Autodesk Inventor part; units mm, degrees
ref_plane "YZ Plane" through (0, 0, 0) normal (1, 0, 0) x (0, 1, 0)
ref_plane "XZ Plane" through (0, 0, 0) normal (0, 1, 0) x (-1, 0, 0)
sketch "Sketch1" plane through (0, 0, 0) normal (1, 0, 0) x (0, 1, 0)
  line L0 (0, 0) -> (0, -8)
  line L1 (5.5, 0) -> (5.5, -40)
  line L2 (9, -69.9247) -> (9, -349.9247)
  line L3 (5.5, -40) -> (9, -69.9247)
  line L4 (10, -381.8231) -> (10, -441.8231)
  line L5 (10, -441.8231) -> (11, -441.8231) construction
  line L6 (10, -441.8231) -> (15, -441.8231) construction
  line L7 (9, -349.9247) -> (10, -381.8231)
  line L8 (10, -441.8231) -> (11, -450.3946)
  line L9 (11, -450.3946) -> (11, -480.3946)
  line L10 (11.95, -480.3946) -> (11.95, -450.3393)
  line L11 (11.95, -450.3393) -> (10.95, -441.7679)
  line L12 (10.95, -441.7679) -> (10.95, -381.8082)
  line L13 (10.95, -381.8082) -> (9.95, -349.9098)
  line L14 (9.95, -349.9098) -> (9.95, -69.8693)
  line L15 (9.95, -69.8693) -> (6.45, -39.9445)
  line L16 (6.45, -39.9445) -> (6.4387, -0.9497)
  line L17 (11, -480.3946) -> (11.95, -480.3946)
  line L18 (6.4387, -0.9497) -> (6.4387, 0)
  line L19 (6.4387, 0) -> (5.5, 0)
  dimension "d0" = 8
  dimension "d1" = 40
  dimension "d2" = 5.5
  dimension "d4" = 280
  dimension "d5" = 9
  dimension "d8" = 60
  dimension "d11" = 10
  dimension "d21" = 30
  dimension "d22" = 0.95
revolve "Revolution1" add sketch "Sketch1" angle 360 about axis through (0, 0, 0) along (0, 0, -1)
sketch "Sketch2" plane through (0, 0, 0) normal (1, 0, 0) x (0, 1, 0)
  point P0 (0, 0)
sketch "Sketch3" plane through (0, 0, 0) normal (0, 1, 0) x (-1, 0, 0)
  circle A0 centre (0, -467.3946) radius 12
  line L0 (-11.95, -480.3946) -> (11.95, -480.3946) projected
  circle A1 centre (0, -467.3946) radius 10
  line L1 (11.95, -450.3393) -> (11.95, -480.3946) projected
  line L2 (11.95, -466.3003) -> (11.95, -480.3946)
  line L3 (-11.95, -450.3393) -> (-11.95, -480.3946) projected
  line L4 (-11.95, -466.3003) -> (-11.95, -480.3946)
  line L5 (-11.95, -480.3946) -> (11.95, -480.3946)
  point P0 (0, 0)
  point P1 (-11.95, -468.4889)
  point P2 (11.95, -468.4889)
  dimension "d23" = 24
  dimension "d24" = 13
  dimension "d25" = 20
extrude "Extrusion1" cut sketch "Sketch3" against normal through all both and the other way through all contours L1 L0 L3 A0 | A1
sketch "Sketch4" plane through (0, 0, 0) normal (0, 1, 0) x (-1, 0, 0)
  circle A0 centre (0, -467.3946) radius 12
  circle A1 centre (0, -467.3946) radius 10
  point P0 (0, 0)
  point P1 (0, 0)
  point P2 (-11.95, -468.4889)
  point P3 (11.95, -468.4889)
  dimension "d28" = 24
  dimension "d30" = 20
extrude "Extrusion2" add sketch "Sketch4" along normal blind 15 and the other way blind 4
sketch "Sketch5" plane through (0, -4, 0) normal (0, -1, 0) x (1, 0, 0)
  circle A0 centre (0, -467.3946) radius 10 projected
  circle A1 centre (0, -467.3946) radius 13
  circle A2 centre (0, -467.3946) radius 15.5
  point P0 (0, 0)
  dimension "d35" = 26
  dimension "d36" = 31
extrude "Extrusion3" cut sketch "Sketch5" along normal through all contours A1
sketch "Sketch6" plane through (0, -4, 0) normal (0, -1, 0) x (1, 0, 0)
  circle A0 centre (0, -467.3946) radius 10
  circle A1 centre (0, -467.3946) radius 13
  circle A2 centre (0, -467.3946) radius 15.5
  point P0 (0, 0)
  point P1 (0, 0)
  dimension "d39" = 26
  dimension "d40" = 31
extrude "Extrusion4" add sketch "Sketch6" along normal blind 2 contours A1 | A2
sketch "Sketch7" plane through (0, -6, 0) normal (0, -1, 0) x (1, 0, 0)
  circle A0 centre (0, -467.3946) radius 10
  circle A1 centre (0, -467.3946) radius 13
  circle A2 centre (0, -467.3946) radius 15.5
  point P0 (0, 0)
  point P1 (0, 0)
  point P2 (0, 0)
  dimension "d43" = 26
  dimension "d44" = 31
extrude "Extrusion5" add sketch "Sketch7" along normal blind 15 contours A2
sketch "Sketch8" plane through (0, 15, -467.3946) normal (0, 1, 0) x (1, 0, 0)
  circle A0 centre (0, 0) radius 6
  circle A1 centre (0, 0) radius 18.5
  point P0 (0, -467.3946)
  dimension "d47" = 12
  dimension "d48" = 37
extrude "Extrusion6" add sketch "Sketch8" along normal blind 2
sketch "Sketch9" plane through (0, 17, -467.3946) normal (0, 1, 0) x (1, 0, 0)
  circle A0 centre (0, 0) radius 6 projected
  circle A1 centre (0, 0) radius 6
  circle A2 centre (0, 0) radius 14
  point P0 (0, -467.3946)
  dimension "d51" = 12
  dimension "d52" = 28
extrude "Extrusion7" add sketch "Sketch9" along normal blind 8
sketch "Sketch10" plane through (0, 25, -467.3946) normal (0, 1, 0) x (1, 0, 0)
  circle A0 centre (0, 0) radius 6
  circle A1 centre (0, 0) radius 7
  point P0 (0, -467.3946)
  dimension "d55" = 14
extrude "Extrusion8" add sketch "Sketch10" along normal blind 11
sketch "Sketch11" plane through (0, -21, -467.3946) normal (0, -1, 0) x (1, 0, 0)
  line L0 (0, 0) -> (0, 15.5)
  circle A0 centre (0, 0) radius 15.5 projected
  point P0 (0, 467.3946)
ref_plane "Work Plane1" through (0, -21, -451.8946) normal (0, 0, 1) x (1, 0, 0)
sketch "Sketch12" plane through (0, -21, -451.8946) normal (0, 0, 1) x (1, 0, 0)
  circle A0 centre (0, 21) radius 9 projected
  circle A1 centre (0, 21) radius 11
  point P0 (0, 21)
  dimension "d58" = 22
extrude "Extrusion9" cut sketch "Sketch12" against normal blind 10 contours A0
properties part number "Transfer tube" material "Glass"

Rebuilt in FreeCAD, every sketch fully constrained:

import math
import FreeCAD as App
import Part
import Sketcher
Q = App.Units.Quantity


def add_polygon(sketch, points):
    """Adds a closed chain of lines whose ends are joined by coincident constraints."""
    first, n = sketch.GeometryCount, len(points)
    for a, b in zip(points, points[1:] + points[:1]):
        sketch.addGeometry(Part.LineSegment(App.Vector(*a, 0), App.Vector(*b, 0)), False)
    for i in range(n):
        sketch.addConstraint(Sketcher.Constraint("Coincident", first + i, 2, first + (i + 1) % n, 1))

doc = App.newDocument("Part")
body = doc.addObject("PartDesign::Body", "Body")

sketch1 = doc.addObject("Sketcher::SketchObject", "Sketch")
body.addObject(sketch1)
sketch1.AttachmentSupport = (doc.YZ_Plane, [""])
sketch1.MapMode = "FlatFace"
add_polygon(sketch1, [(6.4387, 0), (5.5, 0), (5.5, -40), (9, -69.9247), (9, -349.9247), (10, -381.8231), (10, -441.8231), (11, -450.3946), (11, -480.3946), (11.95, -480.3946), (11.95, -450.3393), (10.95, -441.7679), (10.95, -381.8082), (9.95, -349.9098), (9.95, -69.8693), (6.45, -39.9445), (6.4387, -0.9497)])
sketch1.addConstraint([
    Sketcher.Constraint("Horizontal", 0),
    Sketcher.Constraint("Vertical", 1),
    Sketcher.Constraint("Vertical", 3),
    Sketcher.Constraint("Vertical", 5),
    Sketcher.Constraint("Vertical", 7),
    Sketcher.Constraint("Horizontal", 8),
    Sketcher.Constraint("Vertical", 9),
    Sketcher.Constraint("Vertical", 11),
    Sketcher.Constraint("Vertical", 13),
    Sketcher.Constraint("Vertical", 16),
    Sketcher.Constraint("PointOnObject", 0, 2, -1),
    Sketcher.Constraint("DistanceY", 1, 2, 1, 1, Q("40 mm")),
    Sketcher.Constraint("DistanceY", 3, 2, 3, 1, Q("280 mm")),
    Sketcher.Constraint("DistanceY", 5, 2, 5, 1, Q("60 mm")),
    Sketcher.Constraint("DistanceY", 7, 2, 7, 1, Q("30 mm")),
    Sketcher.Constraint("DistanceX", -1, 1, 2, 2, Q("9 mm")),
    Sketcher.Constraint("DistanceX", -1, 1, 4, 2, Q("10 mm")),
    Sketcher.Constraint("DistanceX", 8, 1, 8, 2, Q("0.95 mm")),
    Sketcher.Constraint("DistanceX", -1, 1, 0, 2, Q("5.5 mm")),
    Sketcher.Constraint("DistanceX", 1, 2, 6, 2, Q("5.5 mm")),
    Sketcher.Constraint("DistanceX", 5, 2, 10, 2, Q("0.95 mm")),
    Sketcher.Constraint("DistanceX", 3, 2, 12, 2, Q("0.95 mm")),
    Sketcher.Constraint("DistanceX", 1, 2, 14, 2, Q("0.95 mm")),
    Sketcher.Constraint("DistanceY", 16, 1, 16, 2, Q("0.9497 mm")),
    Sketcher.Constraint("DistanceY", 6, 2, 3, 2, Q("100.47 mm")),
    Sketcher.Constraint("Distance", 4, Q("31.914 mm")),
    Sketcher.Constraint("Distance", 12, Q("31.914 mm")),
    Sketcher.Constraint("DistanceX", 0, 2, 0, 1, Q("0.9387 mm")),
    Sketcher.Constraint("DistanceY", 9, 1, 9, 2, Q("30.0553 mm")),
    Sketcher.Constraint("DistanceY", 11, 1, 11, 2, Q("59.9597 mm")),
    Sketcher.Constraint("DistanceY", 13, 1, 13, 2, Q("280.0405 mm")),
    Sketcher.Constraint("DistanceY", 4, 2, -1, 1, Q("381.823 mm")),
    Sketcher.Constraint("DistanceY", 10, 2, -1, 1, Q("441.768 mm")),
    Sketcher.Constraint("Distance", 14, Q("30.1288 mm")),
])
revolution = doc.addObject("PartDesign::Revolution", "Revolution")
body.addObject(revolution)
revolution.Profile = sketch1
revolution.ReferenceAxis = (sketch1, ["V_Axis"])
revolution.Angle = 360

sketch2 = doc.addObject("Sketcher::SketchObject", "Sketch001")
body.addObject(sketch2)
sketch2.AttachmentSupport = (doc.XZ_Plane, [""])
sketch2.MapMode = "FlatFace"
sketch2.addGeometry([
    Part.LineSegment(App.Vector(-11.95, -480.3946, 0), App.Vector(-11.95, -468.488903, 0)),
    Part.ArcOfCircle(Part.Circle(App.Vector(0, -467.3946, 0), App.Vector(0, 0, 1), 12), math.radians(-174.767817), math.radians(-5.232183)),
    Part.LineSegment(App.Vector(11.95, -468.488903, 0), App.Vector(11.95, -480.3946, 0)),
    Part.LineSegment(App.Vector(11.95, -480.3946, 0), App.Vector(-11.95, -480.3946, 0)),
    Part.Circle(App.Vector(0, -467.3946, 0), App.Vector(0, 0, 1), 10),
], False)
sketch2.addConstraint([
    Sketcher.Constraint("Coincident", 0, 2, 1, 1),
    Sketcher.Constraint("Coincident", 1, 2, 2, 1),
    Sketcher.Constraint("Coincident", 2, 2, 3, 1),
    Sketcher.Constraint("Coincident", 3, 2, 0, 1),
    Sketcher.Constraint("Vertical", 0),
    Sketcher.Constraint("Vertical", 2),
    Sketcher.Constraint("Horizontal", 3),
    Sketcher.Constraint("Coincident", 4, 3, 1, 3),
    Sketcher.Constraint("Symmetric", 0, 2, 1, 2, -2),
    Sketcher.Constraint("Diameter", 4, Q("20 mm")),
    Sketcher.Constraint("Radius", 1, Q("12 mm")),
    Sketcher.Constraint("DistanceY", 2, 2, 1, 3, Q("13 mm")),
    Sketcher.Constraint("DistanceX", 3, 2, 3, 1, Q("23.9 mm")),
    Sketcher.Constraint("DistanceY", 0, 2, -1, 1, Q("468.489 mm")),
])
pocket1 = doc.addObject("PartDesign::Pocket", "Pocket")
body.addObject(pocket1)
pocket1.Profile = sketch2
pocket1.Type = "ThroughAll"
pocket1.Midplane = True

sketch3 = doc.addObject("Sketcher::SketchObject", "Sketch002")
body.addObject(sketch3)
sketch3.AttachmentSupport = (doc.XZ_Plane, [""])
sketch3.MapMode = "FlatFace"
sketch3.addGeometry([
    Part.Circle(App.Vector(0, -467.3946, 0), App.Vector(0, 0, 1), 12),
    Part.Circle(App.Vector(0, -467.3946, 0), App.Vector(0, 0, 1), 10),
], False)
sketch3.addConstraint([
    Sketcher.Constraint("Coincident", 1, 3, 0, 3),
    Sketcher.Constraint("PointOnObject", 0, 3, -2),
    Sketcher.Constraint("Diameter", 0, Q("24 mm")),
    Sketcher.Constraint("Diameter", 1, Q("20 mm")),
    Sketcher.Constraint("DistanceY", 0, 3, -1, 1, Q("467.3946 mm")),
])
pad1 = doc.addObject("PartDesign::Pad", "Pad")
body.addObject(pad1)
pad1.Profile = sketch3
pad1.Type = "TwoLengths"
pad1.Length = 15
pad1.Length2 = 4
pad1.Reversed = True

sketch4 = doc.addObject("Sketcher::SketchObject", "Sketch003")
body.addObject(sketch4)
sketch4.AttachmentSupport = (doc.XZ_Plane, [""])
sketch4.MapMode = "FlatFace"
sketch4.AttachmentOffset = App.Placement(App.Vector(0, 0, 4), App.Rotation())
sketch4.addGeometry([
    Part.Circle(App.Vector(0, -467.3946, 0), App.Vector(0, 0, 1), 13),
    Part.Circle(App.Vector(0, -467.3946, 0), App.Vector(0, 0, 1), 10),
], False)
sketch4.addConstraint([
    Sketcher.Constraint("Coincident", 1, 3, 0, 3),
    Sketcher.Constraint("PointOnObject", 0, 3, -2),
    Sketcher.Constraint("Diameter", 0, Q("26 mm")),
    Sketcher.Constraint("Diameter", 1, Q("20 mm")),
    Sketcher.Constraint("DistanceY", 0, 3, -1, 1, Q("467.3946 mm")),
])
pocket2 = doc.addObject("PartDesign::Pocket", "Pocket001")
body.addObject(pocket2)
pocket2.Profile = sketch4
pocket2.Type = "ThroughAll"
pocket2.Reversed = True

sketch5 = doc.addObject("Sketcher::SketchObject", "Sketch004")
body.addObject(sketch5)
sketch5.AttachmentSupport = (doc.XZ_Plane, [""])
sketch5.MapMode = "FlatFace"
sketch5.AttachmentOffset = App.Placement(App.Vector(0, 0, 4), App.Rotation())
sketch5.addGeometry([
    Part.Circle(App.Vector(0, -467.3946, 0), App.Vector(0, 0, 1), 15.5),
    Part.Circle(App.Vector(0, -467.3946, 0), App.Vector(0, 0, 1), 10),
], False)
sketch5.addConstraint([
    Sketcher.Constraint("Coincident", 1, 3, 0, 3),
    Sketcher.Constraint("PointOnObject", 0, 3, -2),
    Sketcher.Constraint("Diameter", 0, Q("31 mm")),
    Sketcher.Constraint("Diameter", 1, Q("20 mm")),
    Sketcher.Constraint("DistanceY", 0, 3, -1, 1, Q("467.3946 mm")),
])
pad2 = doc.addObject("PartDesign::Pad", "Pad001")
body.addObject(pad2)
pad2.Profile = sketch5
pad2.Length = 2

sketch6 = doc.addObject("Sketcher::SketchObject", "Sketch005")
body.addObject(sketch6)
sketch6.AttachmentSupport = (doc.XZ_Plane, [""])
sketch6.MapMode = "FlatFace"
sketch6.AttachmentOffset = App.Placement(App.Vector(0, 0, 6), App.Rotation())
sketch6.addGeometry([
    Part.Circle(App.Vector(0, -467.3946, 0), App.Vector(0, 0, 1), 15.5),
    Part.Circle(App.Vector(0, -467.3946, 0), App.Vector(0, 0, 1), 13),
], False)
sketch6.addConstraint([
    Sketcher.Constraint("Coincident", 1, 3, 0, 3),
    Sketcher.Constraint("PointOnObject", 0, 3, -2),
    Sketcher.Constraint("Diameter", 0, Q("31 mm")),
    Sketcher.Constraint("Diameter", 1, Q("26 mm")),
    Sketcher.Constraint("DistanceY", 0, 3, -1, 1, Q("467.3946 mm")),
])
pad3 = doc.addObject("PartDesign::Pad", "Pad002")
body.addObject(pad3)
pad3.Profile = sketch6
pad3.Length = 15

sketch7 = doc.addObject("Sketcher::SketchObject", "Sketch006")
body.addObject(sketch7)
sketch7.AttachmentSupport = (doc.XZ_Plane, [""])
sketch7.MapMode = "FlatFace"
sketch7.AttachmentOffset = App.Placement(App.Vector(0, 0, -15), App.Rotation())
sketch7.addGeometry([
    Part.Circle(App.Vector(0, -467.3946, 0), App.Vector(0, 0, 1), 18.5),
    Part.Circle(App.Vector(0, -467.3946, 0), App.Vector(0, 0, 1), 6),
], False)
sketch7.addConstraint([
    Sketcher.Constraint("Coincident", 1, 3, 0, 3),
    Sketcher.Constraint("PointOnObject", 0, 3, -2),
    Sketcher.Constraint("Diameter", 0, Q("37 mm")),
    Sketcher.Constraint("Diameter", 1, Q("12 mm")),
    Sketcher.Constraint("DistanceY", 0, 3, -1, 1, Q("467.3946 mm")),
])
pad4 = doc.addObject("PartDesign::Pad", "Pad003")
body.addObject(pad4)
pad4.Profile = sketch7
pad4.Length = 2
pad4.Reversed = True

sketch8 = doc.addObject("Sketcher::SketchObject", "Sketch007")
body.addObject(sketch8)
sketch8.AttachmentSupport = (doc.XZ_Plane, [""])
sketch8.MapMode = "FlatFace"
sketch8.AttachmentOffset = App.Placement(App.Vector(0, 0, -17), App.Rotation())
sketch8.addGeometry([
    Part.Circle(App.Vector(0, -467.3946, 0), App.Vector(0, 0, 1), 14),
    Part.Circle(App.Vector(0, -467.3946, 0), App.Vector(0, 0, 1), 6),
], False)
sketch8.addConstraint([
    Sketcher.Constraint("Coincident", 1, 3, 0, 3),
    Sketcher.Constraint("PointOnObject", 0, 3, -2),
    Sketcher.Constraint("Diameter", 0, Q("28 mm")),
    Sketcher.Constraint("Diameter", 1, Q("12 mm")),
    Sketcher.Constraint("DistanceY", 0, 3, -1, 1, Q("467.3946 mm")),
])
pad5 = doc.addObject("PartDesign::Pad", "Pad004")
body.addObject(pad5)
pad5.Profile = sketch8
pad5.Length = 8
pad5.Reversed = True

sketch9 = doc.addObject("Sketcher::SketchObject", "Sketch008")
body.addObject(sketch9)
sketch9.AttachmentSupport = (doc.XZ_Plane, [""])
sketch9.MapMode = "FlatFace"
sketch9.AttachmentOffset = App.Placement(App.Vector(0, 0, -25), App.Rotation())
sketch9.addGeometry([
    Part.Circle(App.Vector(0, -467.3946, 0), App.Vector(0, 0, 1), 7),
    Part.Circle(App.Vector(0, -467.3946, 0), App.Vector(0, 0, 1), 6),
], False)
sketch9.addConstraint([
    Sketcher.Constraint("Coincident", 1, 3, 0, 3),
    Sketcher.Constraint("PointOnObject", 0, 3, -2),
    Sketcher.Constraint("Diameter", 0, Q("14 mm")),
    Sketcher.Constraint("Diameter", 1, Q("12 mm")),
    Sketcher.Constraint("DistanceY", 0, 3, -1, 1, Q("467.3946 mm")),
])
pad6 = doc.addObject("PartDesign::Pad", "Pad005")
body.addObject(pad6)
pad6.Profile = sketch9
pad6.Length = 11
pad6.Reversed = True

sketch10 = doc.addObject("Sketcher::SketchObject", "Sketch009")
body.addObject(sketch10)
sketch10.AttachmentSupport = (doc.XY_Plane, [""])
sketch10.MapMode = "FlatFace"
sketch10.AttachmentOffset = App.Placement(App.Vector(0, 0, -451.8946), App.Rotation())
sketch10.addGeometry(Part.Circle(App.Vector(0, 0, 0), App.Vector(0, 0, 1), 9), False)
sketch10.addConstraint([
    Sketcher.Constraint("Coincident", 0, 3, -1, 1),
    Sketcher.Constraint("Diameter", 0, Q("18 mm")),
])
pocket3 = doc.addObject("PartDesign::Pocket", "Pocket002")
body.addObject(pocket3)
pocket3.Profile = sketch10
pocket3.Length = 10

doc.recompute()
